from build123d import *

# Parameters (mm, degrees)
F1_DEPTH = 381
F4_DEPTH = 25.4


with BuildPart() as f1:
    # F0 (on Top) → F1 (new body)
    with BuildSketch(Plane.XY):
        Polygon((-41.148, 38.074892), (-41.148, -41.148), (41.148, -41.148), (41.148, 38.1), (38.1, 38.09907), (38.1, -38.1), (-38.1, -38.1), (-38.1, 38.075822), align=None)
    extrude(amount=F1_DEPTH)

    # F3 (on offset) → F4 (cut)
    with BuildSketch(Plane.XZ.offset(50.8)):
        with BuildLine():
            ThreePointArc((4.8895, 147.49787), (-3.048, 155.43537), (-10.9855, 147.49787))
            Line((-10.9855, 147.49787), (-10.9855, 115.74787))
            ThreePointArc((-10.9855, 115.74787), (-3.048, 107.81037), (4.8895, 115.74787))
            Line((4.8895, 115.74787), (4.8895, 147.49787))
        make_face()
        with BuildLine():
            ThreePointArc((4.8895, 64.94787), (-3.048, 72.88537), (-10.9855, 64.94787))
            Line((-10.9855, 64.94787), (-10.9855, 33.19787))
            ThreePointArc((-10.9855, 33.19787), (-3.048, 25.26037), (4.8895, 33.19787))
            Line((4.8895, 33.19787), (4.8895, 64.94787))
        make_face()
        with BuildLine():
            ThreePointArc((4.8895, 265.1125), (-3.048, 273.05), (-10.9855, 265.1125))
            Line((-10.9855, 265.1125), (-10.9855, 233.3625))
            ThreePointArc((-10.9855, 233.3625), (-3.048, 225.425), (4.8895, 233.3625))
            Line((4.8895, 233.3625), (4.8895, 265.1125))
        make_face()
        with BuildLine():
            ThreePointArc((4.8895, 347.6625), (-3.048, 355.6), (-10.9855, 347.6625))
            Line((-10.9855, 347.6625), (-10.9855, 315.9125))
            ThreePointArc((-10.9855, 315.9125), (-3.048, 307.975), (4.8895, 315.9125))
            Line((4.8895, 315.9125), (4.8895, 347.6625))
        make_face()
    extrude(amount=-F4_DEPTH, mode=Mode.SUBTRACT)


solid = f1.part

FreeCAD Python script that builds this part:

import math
import FreeCAD as App
import Part
import Sketcher
Q = App.Units.Quantity


def add_polygon(sketch, points):
    """Adds a closed chain of lines whose ends are joined by coincident constraints."""
    first, n = sketch.GeometryCount, len(points)
    for a, b in zip(points, points[1:] + points[:1]):
        sketch.addGeometry(Part.LineSegment(App.Vector(*a, 0), App.Vector(*b, 0)), False)
    for i in range(n):
        sketch.addConstraint(Sketcher.Constraint("Coincident", first + i, 2, first + (i + 1) % n, 1))

doc = App.newDocument("Part")
params = doc.addObject("Spreadsheet::Sheet", "Params")
for row, (alias, value) in enumerate([
    ("sketch1_width", "3 in"),
    ("sketch1_width2", "3.24 in"),
    ("sketch1_height", "3.12 in"),
    ("pad1_length", "15 in"),
    ("sketch2_radius", "0.3125 in"),
    ("sketch2_height", "1.25 in"),
    ("pocket1_length", "1 in"),
], start=1):
    params.set(f"A{row}", alias)
    params.set(f"B{row}", "=" + value)
    params.setAlias(f"B{row}", alias)

body = doc.addObject("PartDesign::Body", "Body")

# Sketch on XY plane
sketch1 = body.newObject("Sketcher::SketchObject", "Sketch")
sketch1.AttachmentSupport = (doc.getObject("XY_Plane"), [""])
sketch1.MapMode = "FlatFace"
add_polygon(sketch1, [(-41.148, 38.074892), (-41.148, -41.148), (41.148, -41.148), (41.148, 38.1), (38.1, 38.09907), (38.1, -38.1), (-38.1, -38.1), (-38.1, 38.075822)])  # lines 0-7
sketch1.addConstraint(Sketcher.Constraint("Vertical", 0))
sketch1.addConstraint(Sketcher.Constraint("Horizontal", 1))
sketch1.addConstraint(Sketcher.Constraint("Vertical", 2))
sketch1.addConstraint(Sketcher.Constraint("Vertical", 4))
sketch1.addConstraint(Sketcher.Constraint("Horizontal", 5))
sketch1.addConstraint(Sketcher.Constraint("Vertical", 6))
sketch1.addConstraint(Sketcher.Constraint("Parallel", 3, 7))
sketch1.addConstraint(Sketcher.Constraint("Equal", 3, 7))
sketch1.addConstraint(Sketcher.Constraint("DistanceX", 5, 2, 5, 1, Q("3 in")))
sketch1.addConstraint(Sketcher.Constraint("DistanceY", 4, 2, 2, 2, Q("3 in")))
sketch1.addConstraint(Sketcher.Constraint("DistanceX", 1, 1, 1, 2, Q("3.24 in")))
sketch1.addConstraint(Sketcher.Constraint("DistanceY", 2, 1, 2, 2, Q("3.12 in")))
sketch1.addConstraint(Sketcher.Constraint("DistanceY", -1, 1, 2, 2, Q("1.5 in")))
sketch1.addConstraint(Sketcher.Constraint("DistanceX", -1, 1, 3, 2, Q("1.5 in")))
sketch1.addConstraint(Sketcher.Constraint("DistanceY", 0, 2, 0, 1, Q("79.222892 mm")))
sketch1.addConstraint(Sketcher.Constraint("DistanceY", 4, 2, 4, 1, Q("76.19907 mm")))
sketch1.setExpression("Constraints[16]", "Params.sketch1_width")
sketch1.setExpression("Constraints[18]", "Params.sketch1_width2")
sketch1.setExpression("Constraints[19]", "Params.sketch1_height")
pad1 = body.newObject("PartDesign::Pad", "Pad")
pad1.Profile = sketch1
pad1.setExpression("Length", "Params.pad1_length")

# Sketch on XZ plane
sketch2 = body.newObject("Sketcher::SketchObject", "Sketch001")
sketch2.AttachmentSupport = (doc.getObject("XZ_Plane"), [""])
sketch2.MapMode = "FlatFace"
sketch2.AttachmentOffset = App.Placement(App.Vector(0, 0, 2 * 25.4), App.Rotation())
sketch2.addGeometry(Part.ArcOfCircle(Part.Circle(App.Vector(-3.048, 147.49787, 0), App.Vector(0, 0, 1), 7.9375), math.radians(0), math.radians(180)), False)
sketch2.addGeometry(Part.LineSegment(App.Vector(-10.9855, 147.49787, 0), App.Vector(-10.9855, 115.74787, 0)), False)
sketch2.addGeometry(Part.ArcOfCircle(Part.Circle(App.Vector(-3.048, 115.74787, 0), App.Vector(0, 0, 1), 7.9375), math.radians(180), math.radians(360)), False)
sketch2.addGeometry(Part.LineSegment(App.Vector(4.8895, 115.74787, 0), App.Vector(4.8895, 147.49787, 0)), False)
sketch2.addGeometry(Part.ArcOfCircle(Part.Circle(App.Vector(-3.048, 64.94787, 0), App.Vector(0, 0, 1), 7.9375), math.radians(0), math.radians(180)), False)
sketch2.addGeometry(Part.LineSegment(App.Vector(-10.9855, 64.94787, 0), App.Vector(-10.9855, 33.19787, 0)), False)
sketch2.addGeometry(Part.ArcOfCircle(Part.Circle(App.Vector(-3.048, 33.19787, 0), App.Vector(0, 0, 1), 7.9375), math.radians(180), math.radians(360)), False)
sketch2.addGeometry(Part.LineSegment(App.Vector(4.8895, 33.19787, 0), App.Vector(4.8895, 64.94787, 0)), False)
sketch2.addGeometry(Part.ArcOfCircle(Part.Circle(App.Vector(-3.048, 265.1125, 0), App.Vector(0, 0, 1), 7.9375), math.radians(0), math.radians(180)), False)
sketch2.addGeometry(Part.LineSegment(App.Vector(-10.9855, 265.1125, 0), App.Vector(-10.9855, 233.3625, 0)), False)
sketch2.addGeometry(Part.ArcOfCircle(Part.Circle(App.Vector(-3.048, 233.3625, 0), App.Vector(0, 0, 1), 7.9375), math.radians(180), math.radians(360)), False)
sketch2.addGeometry(Part.LineSegment(App.Vector(4.8895, 233.3625, 0), App.Vector(4.8895, 265.1125, 0)), False)
sketch2.addGeometry(Part.ArcOfCircle(Part.Circle(App.Vector(-3.048, 347.6625, 0), App.Vector(0, 0, 1), 7.9375), math.radians(0), math.radians(180)), False)
sketch2.addGeometry(Part.LineSegment(App.Vector(-10.9855, 347.6625, 0), App.Vector(-10.9855, 315.9125, 0)), False)
sketch2.addGeometry(Part.ArcOfCircle(Part.Circle(App.Vector(-3.048, 315.9125, 0), App.Vector(0, 0, 1), 7.9375), math.radians(180), math.radians(360)), False)
sketch2.addGeometry(Part.LineSegment(App.Vector(4.8895, 315.9125, 0), App.Vector(4.8895, 347.6625, 0)), False)
sketch2.addConstraint(Sketcher.Constraint("Tangent", 0, 2, 1, 1))
sketch2.addConstraint(Sketcher.Constraint("Tangent", 1, 2, 2, 1))
sketch2.addConstraint(Sketcher.Constraint("Tangent", 2, 2, 3, 1))
sketch2.addConstraint(Sketcher.Constraint("Tangent", 3, 2, 0, 1))
sketch2.addConstraint(Sketcher.Constraint("Tangent", 4, 2, 5, 1))
sketch2.addConstraint(Sketcher.Constraint("Tangent", 5, 2, 6, 1))
sketch2.addConstraint(Sketcher.Constraint("Tangent", 6, 2, 7, 1))
sketch2.addConstraint(Sketcher.Constraint("Tangent", 7, 2, 4, 1))
sketch2.addConstraint(Sketcher.Constraint("Tangent", 8, 2, 9, 1))
sketch2.addConstraint(Sketcher.Constraint("Tangent", 9, 2, 10, 1))
sketch2.addConstraint(Sketcher.Constraint("Tangent", 10, 2, 11, 1))
sketch2.addConstraint(Sketcher.Constraint("Tangent", 11, 2, 8, 1))
sketch2.addConstraint(Sketcher.Constraint("Tangent", 12, 2, 13, 1))
sketch2.addConstraint(Sketcher.Constraint("Tangent", 13, 2, 14, 1))
sketch2.addConstraint(Sketcher.Constraint("Tangent", 14, 2, 15, 1))
sketch2.addConstraint(Sketcher.Constraint("Tangent", 15, 2, 12, 1))
sketch2.addConstraint(Sketcher.Constraint("Vertical", 1))
sketch2.addConstraint(Sketcher.Constraint("Vertical", 3))
sketch2.addConstraint(Sketcher.Constraint("Vertical", 5))
sketch2.addConstraint(Sketcher.Constraint("Vertical", 7))
sketch2.addConstraint(Sketcher.Constraint("Vertical", 9))
sketch2.addConstraint(Sketcher.Constraint("Vertical", 11))
sketch2.addConstraint(Sketcher.Constraint("Vertical", 13))
sketch2.addConstraint(Sketcher.Constraint("Vertical", 15))
sketch2.addConstraint(Sketcher.Constraint("Equal", 2, 4))
sketch2.addConstraint(Sketcher.Constraint("Equal", 6, 8))
sketch2.addConstraint(Sketcher.Constraint("Equal", 10, 12))
sketch2.addConstraint(Sketcher.Constraint("Vertical", 2, 3, 4, 3))
sketch2.addConstraint(Sketcher.Constraint("Vertical", 6, 3, 8, 3))
sketch2.addConstraint(Sketcher.Constraint("Vertical", 10, 3, 12, 3))
sketch2.addConstraint(Sketcher.Constraint("Equal", 3, 5))
sketch2.addConstraint(Sketcher.Constraint("Equal", 7, 9))
sketch2.addConstraint(Sketcher.Constraint("Equal", 11, 13))
sketch2.addConstraint(Sketcher.Constraint("Radius", 0, Q("0.3125 in")))
sketch2.addConstraint(Sketcher.Constraint("DistanceY", 4, 3, 2, 3, Q("2 in")))
sketch2.addConstraint(Sketcher.Constraint("DistanceY", 8, 3, 14, 3, Q("2 in")))
sketch2.addConstraint(Sketcher.Constraint("DistanceY", 1, 2, 1, 1, Q("1.25 in")))
sketch2.addConstraint(Sketcher.Constraint("DistanceX", 0, 3, -1, 1, Q("0.12 in")))
sketch2.addConstraint(Sketcher.Constraint("DistanceY", -1, 1, 8, 3, Q("10.4375 in")))
sketch2.addConstraint(Sketcher.Constraint("DistanceY", -1, 1, 0, 3, Q("147.49787 mm")))
sketch2.setExpression("Constraints[33]", "Params.sketch2_radius")
sketch2.setExpression("Constraints[36]", "Params.sketch2_height")
pocket1 = body.newObject("PartDesign::Pocket", "Pocket")
pocket1.Profile = sketch2
pocket1.setExpression("Length", "Params.pocket1_length")

doc.recompute()
